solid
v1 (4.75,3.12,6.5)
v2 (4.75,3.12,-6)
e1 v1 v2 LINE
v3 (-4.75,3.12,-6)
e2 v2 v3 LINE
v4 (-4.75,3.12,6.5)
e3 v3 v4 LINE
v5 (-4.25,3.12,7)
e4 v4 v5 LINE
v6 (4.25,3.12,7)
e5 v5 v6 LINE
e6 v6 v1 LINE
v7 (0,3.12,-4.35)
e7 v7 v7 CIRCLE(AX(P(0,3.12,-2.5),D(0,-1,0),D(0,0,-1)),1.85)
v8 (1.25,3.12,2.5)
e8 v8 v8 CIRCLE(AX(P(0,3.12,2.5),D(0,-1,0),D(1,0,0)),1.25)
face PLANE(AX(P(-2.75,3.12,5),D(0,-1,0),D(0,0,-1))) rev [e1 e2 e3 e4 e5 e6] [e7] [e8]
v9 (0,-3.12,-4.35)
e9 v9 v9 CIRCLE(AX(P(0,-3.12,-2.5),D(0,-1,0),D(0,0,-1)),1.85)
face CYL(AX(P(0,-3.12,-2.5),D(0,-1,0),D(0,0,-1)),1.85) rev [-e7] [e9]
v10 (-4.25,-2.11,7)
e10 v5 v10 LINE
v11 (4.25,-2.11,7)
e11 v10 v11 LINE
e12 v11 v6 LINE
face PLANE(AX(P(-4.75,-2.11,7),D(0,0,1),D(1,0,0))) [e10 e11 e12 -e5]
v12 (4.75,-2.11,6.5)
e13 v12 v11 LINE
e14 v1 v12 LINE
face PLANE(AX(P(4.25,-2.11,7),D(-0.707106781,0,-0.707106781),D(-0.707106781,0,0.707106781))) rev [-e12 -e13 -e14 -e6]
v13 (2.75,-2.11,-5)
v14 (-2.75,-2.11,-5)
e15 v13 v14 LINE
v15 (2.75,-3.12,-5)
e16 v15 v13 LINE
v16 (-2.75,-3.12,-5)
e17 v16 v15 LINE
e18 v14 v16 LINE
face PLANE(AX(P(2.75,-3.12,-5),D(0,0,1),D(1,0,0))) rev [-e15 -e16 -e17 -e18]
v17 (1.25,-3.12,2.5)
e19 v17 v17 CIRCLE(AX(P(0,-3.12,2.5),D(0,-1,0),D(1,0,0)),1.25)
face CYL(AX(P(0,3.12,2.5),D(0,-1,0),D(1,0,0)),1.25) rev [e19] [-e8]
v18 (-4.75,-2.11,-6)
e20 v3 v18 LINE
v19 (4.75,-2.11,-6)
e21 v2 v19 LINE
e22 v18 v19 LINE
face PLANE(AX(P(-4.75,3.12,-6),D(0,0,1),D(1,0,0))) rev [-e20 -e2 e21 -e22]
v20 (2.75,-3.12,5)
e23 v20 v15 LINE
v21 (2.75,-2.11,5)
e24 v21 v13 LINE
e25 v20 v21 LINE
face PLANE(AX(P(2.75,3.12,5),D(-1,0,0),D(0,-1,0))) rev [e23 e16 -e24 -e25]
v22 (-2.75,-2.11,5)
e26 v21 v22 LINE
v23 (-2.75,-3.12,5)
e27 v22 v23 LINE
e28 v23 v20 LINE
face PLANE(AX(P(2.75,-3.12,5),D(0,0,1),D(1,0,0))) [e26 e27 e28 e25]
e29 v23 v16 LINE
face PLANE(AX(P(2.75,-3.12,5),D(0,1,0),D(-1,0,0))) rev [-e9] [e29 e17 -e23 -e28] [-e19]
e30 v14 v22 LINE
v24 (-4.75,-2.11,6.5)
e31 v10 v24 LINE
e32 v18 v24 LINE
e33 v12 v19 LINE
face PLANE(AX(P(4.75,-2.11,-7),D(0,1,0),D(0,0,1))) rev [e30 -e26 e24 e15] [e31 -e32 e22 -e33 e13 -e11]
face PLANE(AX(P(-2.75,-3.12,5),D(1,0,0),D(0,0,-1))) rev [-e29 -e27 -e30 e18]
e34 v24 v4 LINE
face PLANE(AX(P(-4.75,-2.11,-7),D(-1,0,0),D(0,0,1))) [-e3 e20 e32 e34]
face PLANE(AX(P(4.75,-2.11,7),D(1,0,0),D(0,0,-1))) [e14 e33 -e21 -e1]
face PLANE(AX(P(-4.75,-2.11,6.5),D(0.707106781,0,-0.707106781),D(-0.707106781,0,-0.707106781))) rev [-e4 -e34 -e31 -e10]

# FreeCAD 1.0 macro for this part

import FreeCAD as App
import Part
import Sketcher
from FreeCAD import Vector


def edges_at(feature, points):
    """Names of the edges that pass closest to the given points."""
    edges = feature.Shape.Edges
    near = lambda p: min(range(len(edges)), key=lambda i: edges[i].distToShape(Part.Vertex(*p))[0])
    return sorted({f"Edge{near(p) + 1}" for p in points})

doc = App.newDocument("Part")
body = doc.addObject("PartDesign::Body", "Body")

# Sketch on XY plane
sketch1 = doc.addObject("Sketcher::SketchObject", "Sketch")
body.addObject(sketch1)
sketch1.AttachmentSupport = (doc.XY_Plane, [""])
sketch1.MapMode = "FlatFace"
sketch1.addGeometry([
    Part.LineSegment(Vector(-2.75, 3.12, 0), Vector(-2.75, -3.12, 0)),
    Part.LineSegment(Vector(-2.75, -3.12, 0), Vector(2.75, -3.12, 0)),
    Part.LineSegment(Vector(2.75, -3.12, 0), Vector(2.75, 3.12, 0)),
    Part.LineSegment(Vector(2.75, 3.12, 0), Vector(-2.75, 3.12, 0)),
], False)
sketch1.addConstraint([
    Sketcher.Constraint("Coincident", 0, 2, 1, 1),
    Sketcher.Constraint("Coincident", 1, 2, 2, 1),
    Sketcher.Constraint("Coincident", 2, 2, 3, 1),
    Sketcher.Constraint("Coincident", 3, 2, 0, 1),
    Sketcher.Constraint("Vertical", 0),
    Sketcher.Constraint("Horizontal", 1),
    Sketcher.Constraint("Vertical", 2),
    Sketcher.Constraint("Horizontal", 3),
    Sketcher.Constraint("Symmetric", 0, 2, 2, 2, -1, 1),
    Sketcher.Constraint("DistanceX", 1, 1, 1, 2, 5.5),
    Sketcher.Constraint("DistanceY", 0, 2, 0, 1, 6.24),
])
pad1 = doc.addObject("PartDesign::Pad", "Pad")
body.addObject(pad1)
pad1.Profile = sketch1
pad1.Length = 10
pad1.Midplane = True

# Sketch on XZ plane
sketch2 = doc.addObject("Sketcher::SketchObject", "Sketch001")
body.addObject(sketch2)
sketch2.AttachmentSupport = (doc.XZ_Plane, [""])
sketch2.MapMode = "FlatFace"
sketch2.AttachmentOffset = App.Placement(Vector(0, 0, -3.12), App.Rotation())
sketch2.addGeometry([
    Part.LineSegment(Vector(-4.75, -7, 0), Vector(-4.75, 7, 0)),
    Part.LineSegment(Vector(-4.75, 7, 0), Vector(4.75, 7, 0)),
    Part.LineSegment(Vector(4.75, 7, 0), Vector(4.75, -7, 0)),
    Part.LineSegment(Vector(4.75, -7, 0), Vector(-4.75, -7, 0)),
], False)
sketch2.addConstraint([
    Sketcher.Constraint("Coincident", 0, 2, 1, 1),
    Sketcher.Constraint("Coincident", 1, 2, 2, 1),
    Sketcher.Constraint("Coincident", 2, 2, 3, 1),
    Sketcher.Constraint("Coincident", 3, 2, 0, 1),
    Sketcher.Constraint("Vertical", 0),
    Sketcher.Constraint("Horizontal", 1),
    Sketcher.Constraint("Vertical", 2),
    Sketcher.Constraint("Horizontal", 3),
    Sketcher.Constraint("Symmetric", 0, 2, 2, 2, -1, 1),
    Sketcher.Constraint("DistanceY", 0, 1, 0, 2, 14.0),
    Sketcher.Constraint("DistanceX", 1, 1, 1, 2, 9.5),
])
pad2 = doc.addObject("PartDesign::Pad", "Pad001")
body.addObject(pad2)
pad2.Profile = sketch2
pad2.Length = 5.23

# Sketch on XZ plane
sketch3 = doc.addObject("Sketcher::SketchObject", "Sketch002")
body.addObject(sketch3)
sketch3.AttachmentSupport = (doc.XZ_Plane, [""])
sketch3.MapMode = "FlatFace"
sketch3.AttachmentOffset = App.Placement(Vector(0, 0, 3.12), App.Rotation())
sketch3.addGeometry(Part.Circle(Vector(0, -2.5, 0), Vector(0, 0, 1), 1.85), False)
sketch3.addConstraint([
    Sketcher.Constraint("PointOnObject", 0, 3, -2),
    Sketcher.Constraint("Diameter", 0, 3.7),
    Sketcher.Constraint("DistanceY", 0, 3, -1, 1, 2.5),
])
doc.recompute()
hole = doc.addObject("PartDesign::Hole", "Hole")
body.addObject(hole)
hole.Profile = sketch3
hole.ThreadType = "None"
hole.Diameter = 3.7
hole.DepthType = "ThroughAll"

# Sketch on XZ plane
sketch4 = doc.addObject("Sketcher::SketchObject", "Sketch003")
body.addObject(sketch4)
sketch4.AttachmentSupport = (doc.XZ_Plane, [""])
sketch4.MapMode = "FlatFace"
sketch4.AttachmentOffset = App.Placement(Vector(0, 0, 3.12), App.Rotation())
sketch4.addGeometry(Part.Circle(Vector(0, 2.5, 0), Vector(0, 0, 1), 1.25), False)
sketch4.addConstraint([
    Sketcher.Constraint("PointOnObject", 0, 3, -2),
    Sketcher.Constraint("Diameter", 0, 2.5),
    Sketcher.Constraint("DistanceY", -1, 1, 0, 3, 2.5),
])
pocket1 = doc.addObject("PartDesign::Pocket", "Pocket")
body.addObject(pocket1)
pocket1.Profile = sketch4
pocket1.Type = "ThroughAll"
doc.recompute()

chamfer = doc.addObject("PartDesign::Chamfer", "Chamfer")
body.addObject(chamfer)
chamfer.Base = (pocket1, edges_at(pocket1, [(4.75, 0.505, 7), (-4.75, 0.505, 7)]))
chamfer.Size = 0.5

# Sketch on XZ plane
sketch5 = doc.addObject("Sketcher::SketchObject", "Sketch004")
body.addObject(sketch5)
sketch5.AttachmentSupport = (doc.XZ_Plane, [""])
sketch5.MapMode = "FlatFace"
sketch5.AttachmentOffset = App.Placement(Vector(0, 0, 3.12), App.Rotation())
sketch5.addGeometry([
    Part.LineSegment(Vector(-4.75, -6, 0), Vector(-4.75, -7, 0)),
    Part.LineSegment(Vector(-4.75, -7, 0), Vector(4.75, -7, 0)),
    Part.LineSegment(Vector(4.75, -7, 0), Vector(4.75, -6, 0)),
    Part.LineSegment(Vector(4.75, -6, 0), Vector(-4.75, -6, 0)),
], False)
sketch5.addConstraint([
    Sketcher.Constraint("Coincident", 0, 2, 1, 1),
    Sketcher.Constraint("Coincident", 1, 2, 2, 1),
    Sketcher.Constraint("Coincident", 2, 2, 3, 1),
    Sketcher.Constraint("Coincident", 3, 2, 0, 1),
    Sketcher.Constraint("Vertical", 0),
    Sketcher.Constraint("Horizontal", 1),
    Sketcher.Constraint("Vertical", 2),
    Sketcher.Constraint("Horizontal", 3),
    Sketcher.Constraint("DistanceY", 0, 2, 0, 1, 1.0),
    Sketcher.Constraint("DistanceX", 1, 1, 1, 2, 9.5),
    Sketcher.Constraint("DistanceY", 0, 2, -1, 1, 7.0),
    Sketcher.Constraint("DistanceX", 0, 2, -1, 1, 4.75),
])
pocket2 = doc.addObject("PartDesign::Pocket", "Pocket001")
body.addObject(pocket2)
pocket2.Profile = sketch5
pocket2.Type = "ThroughAll"

doc.recompute()
